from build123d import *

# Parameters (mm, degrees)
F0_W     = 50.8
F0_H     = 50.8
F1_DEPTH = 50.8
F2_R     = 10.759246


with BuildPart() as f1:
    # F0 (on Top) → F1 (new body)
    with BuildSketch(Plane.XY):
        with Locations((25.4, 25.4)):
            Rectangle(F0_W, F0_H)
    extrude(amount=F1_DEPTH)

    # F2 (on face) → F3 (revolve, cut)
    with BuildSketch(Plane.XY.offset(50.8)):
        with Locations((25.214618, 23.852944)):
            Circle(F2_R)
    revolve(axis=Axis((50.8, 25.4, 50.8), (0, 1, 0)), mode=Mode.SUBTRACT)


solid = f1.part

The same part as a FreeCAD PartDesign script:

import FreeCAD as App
import Part
import Sketcher
Q = App.Units.Quantity

doc = App.newDocument("Part")
body = doc.addObject("PartDesign::Body", "Body")

# Sketch on XY plane
sketch1 = body.newObject("Sketcher::SketchObject", "Sketch")
sketch1.AttachmentSupport = (doc.getObject("XY_Plane"), [""])
sketch1.MapMode = "FlatFace"
sketch1.addGeometry([
    Part.LineSegment(App.Vector(0, 51, 0), App.Vector(0, 0, 0)),
    Part.LineSegment(App.Vector(0, 0, 0), App.Vector(51, 0, 0)),
    Part.LineSegment(App.Vector(51, 0, 0), App.Vector(51, 51, 0)),
    Part.LineSegment(App.Vector(51, 51, 0), App.Vector(0, 51, 0)),
], False)
sketch1.addConstraint([
    Sketcher.Constraint("Coincident", 0, 2, 1, 1),
    Sketcher.Constraint("Coincident", 1, 2, 2, 1),
    Sketcher.Constraint("Coincident", 2, 2, 3, 1),
    Sketcher.Constraint("Coincident", 3, 2, 0, 1),
    Sketcher.Constraint("Vertical", 0),
    Sketcher.Constraint("Horizontal", 1),
    Sketcher.Constraint("Vertical", 2),
    Sketcher.Constraint("Horizontal", 3),
    Sketcher.Constraint("Coincident", 0, 2, -1, 1),
    Sketcher.Constraint("Equal", 3, 0),
    Sketcher.Constraint("DistanceX", 1, 1, 1, 2, Q("2 in")),
])
pad1 = body.newObject("PartDesign::Pad", "Pad")
pad1.Profile = sketch1
pad1.Length = Q("2 in")

# Sketch on XY plane
sketch2 = body.newObject("Sketcher::SketchObject", "Sketch001")
sketch2.AttachmentSupport = (doc.getObject("XY_Plane"), [""])
sketch2.MapMode = "FlatFace"
sketch2.AttachmentOffset = App.Placement(App.Vector(0, 0, 2 * 25.4), App.Rotation())
sketch2.addGeometry(Part.Circle(App.Vector(25, 24, 0), App.Vector(0, 0, 1), 11), False)
sketch2.addGeometry(Part.LineSegment(App.Vector(51, 24, 0), App.Vector(51, 34, 0)), True)  # axis
sketch2.addConstraint([
    Sketcher.Constraint("Vertical", 1),
    Sketcher.Constraint("Horizontal", 0, 3, 1, 1),
    Sketcher.Constraint("DistanceX", -1, 1, 1, 1, Q("2 in")),
    Sketcher.Constraint("Diameter", 0, 21.518492),
    Sketcher.Constraint("DistanceY", 1, 1, 1, 2, 10.0),
    Sketcher.Constraint("DistanceX", -1, 1, 0, 3, 25.214618),
    Sketcher.Constraint("DistanceY", -1, 1, 0, 3, 23.852944),
])
groove = body.newObject("PartDesign::Groove", "Groove")
groove.Profile = sketch2
groove.ReferenceAxis = (sketch2, ["Axis0"])
groove.Angle = 360

doc.recompute()
